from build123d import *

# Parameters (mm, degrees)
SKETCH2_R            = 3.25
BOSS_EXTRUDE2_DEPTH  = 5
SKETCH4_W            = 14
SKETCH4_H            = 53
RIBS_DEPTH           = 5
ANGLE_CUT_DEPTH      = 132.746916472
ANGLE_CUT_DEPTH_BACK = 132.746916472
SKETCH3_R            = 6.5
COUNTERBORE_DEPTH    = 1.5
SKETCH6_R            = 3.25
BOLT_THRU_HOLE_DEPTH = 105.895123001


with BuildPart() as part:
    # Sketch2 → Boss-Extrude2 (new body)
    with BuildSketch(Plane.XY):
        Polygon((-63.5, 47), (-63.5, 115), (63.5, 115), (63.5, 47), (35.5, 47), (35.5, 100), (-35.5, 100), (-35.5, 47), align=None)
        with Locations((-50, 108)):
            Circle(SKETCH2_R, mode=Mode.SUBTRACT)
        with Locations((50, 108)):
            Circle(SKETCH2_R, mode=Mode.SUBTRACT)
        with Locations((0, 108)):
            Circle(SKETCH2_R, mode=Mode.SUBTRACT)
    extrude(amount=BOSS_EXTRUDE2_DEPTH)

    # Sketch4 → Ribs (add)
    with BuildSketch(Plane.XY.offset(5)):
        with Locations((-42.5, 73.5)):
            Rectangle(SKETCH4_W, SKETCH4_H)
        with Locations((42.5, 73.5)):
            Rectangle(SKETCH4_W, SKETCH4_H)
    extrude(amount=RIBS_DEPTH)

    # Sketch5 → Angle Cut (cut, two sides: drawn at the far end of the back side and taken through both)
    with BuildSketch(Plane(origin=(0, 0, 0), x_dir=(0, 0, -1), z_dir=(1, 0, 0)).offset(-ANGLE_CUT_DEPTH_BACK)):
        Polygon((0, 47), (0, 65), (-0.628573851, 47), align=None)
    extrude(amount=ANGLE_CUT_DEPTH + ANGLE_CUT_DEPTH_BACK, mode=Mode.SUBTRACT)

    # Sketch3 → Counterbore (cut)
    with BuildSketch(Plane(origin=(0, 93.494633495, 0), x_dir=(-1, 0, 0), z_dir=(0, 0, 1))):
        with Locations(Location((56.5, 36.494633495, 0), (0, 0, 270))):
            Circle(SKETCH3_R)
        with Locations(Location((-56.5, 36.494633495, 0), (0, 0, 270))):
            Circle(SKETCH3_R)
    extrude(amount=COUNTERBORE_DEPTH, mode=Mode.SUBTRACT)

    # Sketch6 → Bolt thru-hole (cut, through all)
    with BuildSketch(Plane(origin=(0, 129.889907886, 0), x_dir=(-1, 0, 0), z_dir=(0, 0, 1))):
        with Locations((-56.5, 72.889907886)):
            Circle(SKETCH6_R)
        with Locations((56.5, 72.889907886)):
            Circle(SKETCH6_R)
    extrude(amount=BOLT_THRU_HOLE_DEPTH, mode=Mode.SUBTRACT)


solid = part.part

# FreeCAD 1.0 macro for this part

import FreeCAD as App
import Part
import Sketcher
from FreeCAD import Vector
Q = App.Units.Quantity


def add_polygon(sketch, points):
    """Adds a closed chain of lines whose ends are joined by coincident constraints."""
    first, n = sketch.GeometryCount, len(points)
    for a, b in zip(points, points[1:] + points[:1]):
        sketch.addGeometry(Part.LineSegment(App.Vector(*a, 0), App.Vector(*b, 0)), False)
    for i in range(n):
        sketch.addConstraint(Sketcher.Constraint("Coincident", first + i, 2, first + (i + 1) % n, 1))

doc = App.newDocument("Part")
body = doc.addObject("PartDesign::Body", "Body")

sketch1 = body.newObject("Sketcher::SketchObject", "Sketch")
sketch1.AttachmentSupport = (doc.getObject("XY_Plane"), [""])
sketch1.MapMode = "FlatFace"
add_polygon(sketch1, [(-63.5, 115), (-63.5, 47), (-35.5, 47), (-35.5, 100), (35.5, 100), (35.5, 47), (63.5, 47), (63.5, 115)])
sketch1.addGeometry(Part.Circle(Vector(50, 108, 0), Vector(0, 0, 1), 3.25), False)
sketch1.addGeometry(Part.Circle(Vector(0, 108, 0), Vector(0, 0, 1), 3.25), False)
sketch1.addGeometry(Part.Circle(Vector(-50, 108, 0), Vector(0, 0, 1), 3.25), False)
sketch1.addConstraint(Sketcher.Constraint("Vertical", 0))
sketch1.addConstraint(Sketcher.Constraint("Horizontal", 1))
sketch1.addConstraint(Sketcher.Constraint("Vertical", 2))
sketch1.addConstraint(Sketcher.Constraint("Horizontal", 3))
sketch1.addConstraint(Sketcher.Constraint("Vertical", 4))
sketch1.addConstraint(Sketcher.Constraint("Horizontal", 5))
sketch1.addConstraint(Sketcher.Constraint("Vertical", 6))
sketch1.addConstraint(Sketcher.Constraint("Horizontal", 7))
sketch1.addConstraint(Sketcher.Constraint("Equal", 8, 9))
sketch1.addConstraint(Sketcher.Constraint("Equal", 9, 10))
sketch1.addConstraint(Sketcher.Constraint("Symmetric", 8, 3, 10, 3, -2))
sketch1.addConstraint(Sketcher.Constraint("Symmetric", 1, 2, 4, 2, -2))
sketch1.addConstraint(Sketcher.Constraint("PointOnObject", 9, 3, -2))
sketch1.addConstraint(Sketcher.Constraint("Horizontal", 8, 3, 9, 3))
sketch1.addConstraint(Sketcher.Constraint("Equal", 1, 5))
sketch1.addConstraint(Sketcher.Constraint("Diameter", 8, Q("6.5 mm")))
sketch1.addConstraint(Sketcher.Constraint("DistanceX", 1, 1, 1, 2, Q("28 mm")))
sketch1.addConstraint(Sketcher.Constraint("DistanceX", 3, 1, 3, 2, Q("71 mm")))
sketch1.addConstraint(Sketcher.Constraint("DistanceY", 0, 2, 0, 1, Q("68 mm")))
sketch1.addConstraint(Sketcher.Constraint("DistanceY", 2, 1, 2, 2, Q("53 mm")))
sketch1.addConstraint(Sketcher.Constraint("DistanceX", -1, 1, 8, 3, Q("50 mm")))
sketch1.addConstraint(Sketcher.Constraint("DistanceY", -1, 1, 8, 3, Q("108 mm")))
sketch1.addConstraint(Sketcher.Constraint("DistanceY", -1, 1, 0, 2, Q("47 mm")))
pad1 = body.newObject("PartDesign::Pad", "Pad")
pad1.Profile = sketch1
pad1.Length = 5

sketch2 = body.newObject("Sketcher::SketchObject", "Sketch001")
sketch2.AttachmentSupport = (doc.getObject("XY_Plane"), [""])
sketch2.MapMode = "FlatFace"
sketch2.AttachmentOffset = App.Placement(Vector(0, 0, 5), App.Rotation())
add_polygon(sketch2, [(-49.5, 100), (-49.5, 47), (-35.5, 47), (-35.5, 100)])
add_polygon(sketch2, [(35.5, 100), (35.5, 47), (49.5, 47), (49.5, 100)])
sketch2.addConstraint(Sketcher.Constraint("Vertical", 0))
sketch2.addConstraint(Sketcher.Constraint("Horizontal", 1))
sketch2.addConstraint(Sketcher.Constraint("Vertical", 2))
sketch2.addConstraint(Sketcher.Constraint("Horizontal", 3))
sketch2.addConstraint(Sketcher.Constraint("Vertical", 4))
sketch2.addConstraint(Sketcher.Constraint("Horizontal", 5))
sketch2.addConstraint(Sketcher.Constraint("Vertical", 6))
sketch2.addConstraint(Sketcher.Constraint("Horizontal", 7))
sketch2.addConstraint(Sketcher.Constraint("Symmetric", 1, 2, 4, 2, -2))
sketch2.addConstraint(Sketcher.Constraint("Symmetric", 3, 2, 6, 2, -2))
sketch2.addConstraint(Sketcher.Constraint("DistanceX", 1, 1, 1, 2, Q("14 mm")))
sketch2.addConstraint(Sketcher.Constraint("DistanceY", 0, 2, 0, 1, Q("53 mm")))
sketch2.addConstraint(Sketcher.Constraint("DistanceY", -1, 1, 0, 2, Q("47 mm")))
sketch2.addConstraint(Sketcher.Constraint("DistanceX", 1, 2, 4, 2, Q("71 mm")))
pad2 = body.newObject("PartDesign::Pad", "Pad001")
pad2.Profile = sketch2
pad2.Length = 5

sketch3 = body.newObject("Sketcher::SketchObject", "Sketch002")
sketch3.AttachmentSupport = (doc.getObject("YZ_Plane"), [""])
sketch3.MapMode = "FlatFace"
add_polygon(sketch3, [(47, 0), (65, 0), (47, 0.628574)])
sketch3.addConstraint(Sketcher.Constraint("Horizontal", 0))
sketch3.addConstraint(Sketcher.Constraint("Vertical", 2))
sketch3.addConstraint(Sketcher.Constraint("PointOnObject", 0, 2, -1))
sketch3.addConstraint(Sketcher.Constraint("DistanceX", 0, 1, 0, 2, Q("18 mm")))
sketch3.addConstraint(Sketcher.Constraint("Angle", 1, Q("178 deg")))
sketch3.addConstraint(Sketcher.Constraint("DistanceX", -1, 1, 0, 2, Q("65 mm")))
pocket1 = body.newObject("PartDesign::Pocket", "Pocket")
pocket1.Profile = sketch3
pocket1.Type = "ThroughAll"
pocket1.Midplane = True

sketch4 = body.newObject("Sketcher::SketchObject", "Sketch003")
sketch4.AttachmentSupport = (doc.getObject("XY_Plane"), [""])
sketch4.MapMode = "FlatFace"
sketch4.addGeometry(Part.Circle(Vector(-56.5, 57, 0), Vector(0, 0, 1), 6.5), False)
sketch4.addGeometry(Part.Circle(Vector(56.5, 57, 0), Vector(0, 0, 1), 6.5), False)
sketch4.addConstraint(Sketcher.Constraint("Equal", 0, 1))
sketch4.addConstraint(Sketcher.Constraint("Symmetric", 0, 3, 1, 3, -2))
sketch4.addConstraint(Sketcher.Constraint("Diameter", 0, Q("13 mm")))
sketch4.addConstraint(Sketcher.Constraint("DistanceY", -1, 1, 0, 3, Q("57 mm")))
sketch4.addConstraint(Sketcher.Constraint("DistanceX", 0, 3, 1, 3, Q("113 mm")))
pocket2 = body.newObject("PartDesign::Pocket", "Pocket001")
pocket2.Profile = sketch4
pocket2.Length = 1.5
pocket2.Reversed = True

sketch5 = body.newObject("Sketcher::SketchObject", "Sketch004")
sketch5.AttachmentSupport = (doc.getObject("XY_Plane"), [""])
sketch5.MapMode = "FlatFace"
sketch5.addGeometry(Part.Circle(Vector(56.5, 57, 0), Vector(0, 0, 1), 3.25), False)
sketch5.addGeometry(Part.Circle(Vector(-56.5, 57, 0), Vector(0, 0, 1), 3.25), False)
sketch5.addConstraint(Sketcher.Constraint("Equal", 0, 1))
sketch5.addConstraint(Sketcher.Constraint("Symmetric", 0, 3, 1, 3, -2))
sketch5.addConstraint(Sketcher.Constraint("Diameter", 0, Q("6.5 mm")))
sketch5.addConstraint(Sketcher.Constraint("DistanceY", -1, 1, 0, 3, Q("57 mm")))
sketch5.addConstraint(Sketcher.Constraint("DistanceX", 1, 3, 0, 3, Q("113 mm")))
pocket3 = body.newObject("PartDesign::Pocket", "Pocket002")
pocket3.Profile = sketch5
pocket3.Type = "ThroughAll"
pocket3.Reversed = True

doc.recompute()
